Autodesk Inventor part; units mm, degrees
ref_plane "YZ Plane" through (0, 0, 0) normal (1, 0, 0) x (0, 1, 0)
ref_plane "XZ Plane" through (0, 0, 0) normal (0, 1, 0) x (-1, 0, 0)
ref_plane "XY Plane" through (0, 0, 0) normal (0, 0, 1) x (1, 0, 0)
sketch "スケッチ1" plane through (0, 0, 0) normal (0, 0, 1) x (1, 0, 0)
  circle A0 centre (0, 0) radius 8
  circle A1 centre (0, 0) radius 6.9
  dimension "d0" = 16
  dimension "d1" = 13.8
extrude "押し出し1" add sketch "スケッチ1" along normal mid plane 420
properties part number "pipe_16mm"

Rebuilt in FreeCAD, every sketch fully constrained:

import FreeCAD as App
import Part
import Sketcher

V = App.Vector

doc = App.newDocument("Part")
body = doc.addObject("PartDesign::Body", "Body")

# Sketch on XY plane
sketch1 = body.newObject("Sketcher::SketchObject", "Sketch")
sketch1.AttachmentSupport = (doc.getObject("XY_Plane"), [""])
sketch1.MapMode = "FlatFace"
sketch1.addGeometry(Part.Circle(V(0, 0, 0), V(0, 0, 1), 8), False)
sketch1.addGeometry(Part.Circle(V(0, 0, 0), V(0, 0, 1), 7), False)
sketch1.addConstraint(Sketcher.Constraint("Coincident", 0, 3, -1, 1))
sketch1.addConstraint(Sketcher.Constraint("Coincident", 1, 3, -1, 1))
sketch1.addConstraint(Sketcher.Constraint("Diameter", 0, 16.0))
sketch1.addConstraint(Sketcher.Constraint("Diameter", 1, 13.8))
pad1 = body.newObject("PartDesign::Pad", "Pad")
pad1.Profile = sketch1
pad1.Length = 420
pad1.Midplane = True

doc.recompute()
